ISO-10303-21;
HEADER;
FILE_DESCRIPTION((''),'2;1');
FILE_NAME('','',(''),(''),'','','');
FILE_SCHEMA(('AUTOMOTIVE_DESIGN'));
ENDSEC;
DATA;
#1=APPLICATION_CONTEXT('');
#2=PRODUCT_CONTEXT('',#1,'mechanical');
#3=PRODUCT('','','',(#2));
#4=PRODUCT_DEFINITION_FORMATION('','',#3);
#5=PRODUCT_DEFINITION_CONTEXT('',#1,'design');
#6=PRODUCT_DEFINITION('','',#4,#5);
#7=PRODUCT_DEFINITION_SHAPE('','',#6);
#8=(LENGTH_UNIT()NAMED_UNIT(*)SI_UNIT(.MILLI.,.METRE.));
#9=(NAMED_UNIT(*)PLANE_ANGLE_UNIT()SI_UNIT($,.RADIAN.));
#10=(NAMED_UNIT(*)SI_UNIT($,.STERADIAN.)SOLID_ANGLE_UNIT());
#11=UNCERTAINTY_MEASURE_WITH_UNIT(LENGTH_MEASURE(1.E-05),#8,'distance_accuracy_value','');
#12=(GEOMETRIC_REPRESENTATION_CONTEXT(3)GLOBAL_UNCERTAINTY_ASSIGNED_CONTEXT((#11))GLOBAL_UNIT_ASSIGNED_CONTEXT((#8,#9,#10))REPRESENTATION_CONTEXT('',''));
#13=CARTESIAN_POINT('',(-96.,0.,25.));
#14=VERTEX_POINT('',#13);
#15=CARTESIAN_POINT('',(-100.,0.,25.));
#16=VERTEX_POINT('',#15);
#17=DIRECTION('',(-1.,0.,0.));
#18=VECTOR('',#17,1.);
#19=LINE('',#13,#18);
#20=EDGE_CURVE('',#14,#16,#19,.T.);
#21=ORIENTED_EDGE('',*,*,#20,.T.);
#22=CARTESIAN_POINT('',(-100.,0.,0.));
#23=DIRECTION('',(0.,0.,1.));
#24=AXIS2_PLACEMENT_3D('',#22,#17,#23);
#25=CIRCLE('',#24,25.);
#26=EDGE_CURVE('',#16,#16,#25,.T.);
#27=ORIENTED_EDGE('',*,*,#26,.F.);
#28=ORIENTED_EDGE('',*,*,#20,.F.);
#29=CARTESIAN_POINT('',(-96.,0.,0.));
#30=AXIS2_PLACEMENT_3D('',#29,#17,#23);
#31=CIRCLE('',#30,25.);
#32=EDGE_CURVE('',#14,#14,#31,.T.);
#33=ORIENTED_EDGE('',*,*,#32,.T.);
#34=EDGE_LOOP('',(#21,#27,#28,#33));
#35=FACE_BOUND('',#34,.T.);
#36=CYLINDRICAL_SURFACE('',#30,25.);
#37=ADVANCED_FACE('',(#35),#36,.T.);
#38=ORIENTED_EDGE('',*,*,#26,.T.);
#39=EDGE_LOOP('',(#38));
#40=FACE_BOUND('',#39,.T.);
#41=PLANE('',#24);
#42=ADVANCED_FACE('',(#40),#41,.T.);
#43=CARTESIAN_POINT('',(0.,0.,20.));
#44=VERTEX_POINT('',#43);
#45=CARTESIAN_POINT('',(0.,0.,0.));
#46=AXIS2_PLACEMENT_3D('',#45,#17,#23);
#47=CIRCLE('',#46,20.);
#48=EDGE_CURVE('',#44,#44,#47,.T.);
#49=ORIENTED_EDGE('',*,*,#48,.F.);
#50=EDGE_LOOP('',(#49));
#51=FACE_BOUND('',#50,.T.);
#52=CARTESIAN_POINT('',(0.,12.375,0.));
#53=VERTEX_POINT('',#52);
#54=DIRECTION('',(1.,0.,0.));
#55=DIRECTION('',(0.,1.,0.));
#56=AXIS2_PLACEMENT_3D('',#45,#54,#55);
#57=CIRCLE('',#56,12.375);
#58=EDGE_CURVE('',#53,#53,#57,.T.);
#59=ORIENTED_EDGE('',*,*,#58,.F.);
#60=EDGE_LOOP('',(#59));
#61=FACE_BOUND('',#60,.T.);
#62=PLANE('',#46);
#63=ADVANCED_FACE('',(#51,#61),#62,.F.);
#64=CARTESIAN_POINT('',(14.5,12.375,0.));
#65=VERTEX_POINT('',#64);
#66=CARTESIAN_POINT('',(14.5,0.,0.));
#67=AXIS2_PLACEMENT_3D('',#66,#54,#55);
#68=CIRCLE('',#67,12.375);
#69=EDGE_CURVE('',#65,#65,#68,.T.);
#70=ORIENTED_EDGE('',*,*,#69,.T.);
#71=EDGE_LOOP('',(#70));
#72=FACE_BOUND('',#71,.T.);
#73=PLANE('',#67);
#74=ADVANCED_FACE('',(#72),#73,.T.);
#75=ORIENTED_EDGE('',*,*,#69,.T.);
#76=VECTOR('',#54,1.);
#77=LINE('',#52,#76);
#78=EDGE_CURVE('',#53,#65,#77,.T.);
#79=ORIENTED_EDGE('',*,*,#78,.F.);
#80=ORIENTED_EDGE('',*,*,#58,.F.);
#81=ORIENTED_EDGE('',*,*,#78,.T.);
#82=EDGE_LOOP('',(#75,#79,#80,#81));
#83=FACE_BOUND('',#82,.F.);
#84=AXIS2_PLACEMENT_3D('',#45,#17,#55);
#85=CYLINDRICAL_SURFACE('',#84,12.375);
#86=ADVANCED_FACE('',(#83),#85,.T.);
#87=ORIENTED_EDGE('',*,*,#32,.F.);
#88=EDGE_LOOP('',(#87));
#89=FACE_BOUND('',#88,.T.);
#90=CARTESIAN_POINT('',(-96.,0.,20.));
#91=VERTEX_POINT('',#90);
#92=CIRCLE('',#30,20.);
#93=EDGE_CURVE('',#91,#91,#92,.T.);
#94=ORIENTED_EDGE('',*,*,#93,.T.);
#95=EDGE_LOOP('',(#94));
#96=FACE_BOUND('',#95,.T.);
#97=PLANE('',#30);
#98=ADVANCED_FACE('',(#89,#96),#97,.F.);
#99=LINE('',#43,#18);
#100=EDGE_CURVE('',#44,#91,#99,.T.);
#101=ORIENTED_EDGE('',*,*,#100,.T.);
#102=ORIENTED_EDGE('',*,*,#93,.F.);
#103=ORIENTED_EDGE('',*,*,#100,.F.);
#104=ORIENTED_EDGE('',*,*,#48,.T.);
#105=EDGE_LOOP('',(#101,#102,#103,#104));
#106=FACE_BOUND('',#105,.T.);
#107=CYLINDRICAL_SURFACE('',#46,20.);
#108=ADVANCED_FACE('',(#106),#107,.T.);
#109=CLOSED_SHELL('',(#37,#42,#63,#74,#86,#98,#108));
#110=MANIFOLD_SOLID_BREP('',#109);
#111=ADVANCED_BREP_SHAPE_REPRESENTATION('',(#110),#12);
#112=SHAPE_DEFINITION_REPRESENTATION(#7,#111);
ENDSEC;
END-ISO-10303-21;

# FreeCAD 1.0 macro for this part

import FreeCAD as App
import Part
import Sketcher
Q = App.Units.Quantity

doc = App.newDocument("Part")
params = doc.addObject("Spreadsheet::Sheet", "Params")
for row, (alias, value) in enumerate([
    ("sketch1_width", "100 mm"),
    ("sketch1_width2", "96 mm"),
    ("sketch1_height", "20 mm"),
    ("sketch1_height2", "5 mm"),
    ("revolution_angle", "360 deg"),
    ("sketch2_diameter", "24.75 mm"),
    ("pad1_length", "14.5 mm"),
], start=1):
    params.set(f"A{row}", alias)
    params.set(f"B{row}", "=" + value)
    params.setAlias(f"B{row}", alias)

body = doc.addObject("PartDesign::Body", "Body")

# Sketch on XZ plane
sketch1 = doc.addObject("Sketcher::SketchObject", "Sketch")
body.addObject(sketch1)
sketch1.AttachmentSupport = (doc.XZ_Plane, [""])
sketch1.MapMode = "FlatFace"
sketch1.addGeometry(Part.LineSegment(App.Vector(-100, 0, 0), App.Vector(0, 0, 0)), False)
sketch1.addGeometry(Part.LineSegment(App.Vector(0, 0, 0), App.Vector(0, 20, 0)), False)
sketch1.addGeometry(Part.LineSegment(App.Vector(0, 20, 0), App.Vector(-96, 20, 0)), False)
sketch1.addGeometry(Part.LineSegment(App.Vector(-96, 20, 0), App.Vector(-96, 25, 0)), False)
sketch1.addGeometry(Part.LineSegment(App.Vector(-96, 25, 0), App.Vector(-100, 25, 0)), False)
sketch1.addGeometry(Part.LineSegment(App.Vector(-100, 25, 0), App.Vector(-100, 0, 0)), False)
sketch1.addConstraint(Sketcher.Constraint("Coincident", 0, 2, 1, 1))
sketch1.addConstraint(Sketcher.Constraint("Coincident", 1, 2, 2, 1))
sketch1.addConstraint(Sketcher.Constraint("Coincident", 2, 2, 3, 1))
sketch1.addConstraint(Sketcher.Constraint("Coincident", 3, 2, 4, 1))
sketch1.addConstraint(Sketcher.Constraint("Coincident", 4, 2, 5, 1))
sketch1.addConstraint(Sketcher.Constraint("Coincident", 5, 2, 0, 1))
sketch1.addConstraint(Sketcher.Constraint("Horizontal", 0))
sketch1.addConstraint(Sketcher.Constraint("Vertical", 1))
sketch1.addConstraint(Sketcher.Constraint("Horizontal", 2))
sketch1.addConstraint(Sketcher.Constraint("Vertical", 3))
sketch1.addConstraint(Sketcher.Constraint("Horizontal", 4))
sketch1.addConstraint(Sketcher.Constraint("Vertical", 5))
sketch1.addConstraint(Sketcher.Constraint("Coincident", 0, 2, -1, 1))
sketch1.addConstraint(Sketcher.Constraint("DistanceX", 0, 1, 0, 2, Q("100 mm")))
sketch1.addConstraint(Sketcher.Constraint("DistanceX", 2, 2, 2, 1, Q("96 mm")))
sketch1.addConstraint(Sketcher.Constraint("DistanceY", 1, 1, 1, 2, Q("20 mm")))
sketch1.addConstraint(Sketcher.Constraint("DistanceY", 3, 1, 3, 2, Q("5 mm")))
sketch1.setExpression("Constraints[13]", "Params.sketch1_width")
sketch1.setExpression("Constraints[14]", "Params.sketch1_width2")
sketch1.setExpression("Constraints[15]", "Params.sketch1_height")
sketch1.setExpression("Constraints[16]", "Params.sketch1_height2")
revolution = doc.addObject("PartDesign::Revolution", "Revolution")
body.addObject(revolution)
revolution.Profile = sketch1
revolution.ReferenceAxis = (sketch1, ["H_Axis"])
revolution.setExpression("Angle", "Params.revolution_angle")

# Sketch on YZ plane
sketch2 = doc.addObject("Sketcher::SketchObject", "Sketch001")
body.addObject(sketch2)
sketch2.AttachmentSupport = (doc.YZ_Plane, [""])
sketch2.MapMode = "FlatFace"
sketch2.addGeometry(Part.Circle(App.Vector(0, 0, 0), App.Vector(0, 0, 1), 12), False)
sketch2.addConstraint(Sketcher.Constraint("Coincident", 0, 3, -1, 1))
sketch2.addConstraint(Sketcher.Constraint("Diameter", 0, Q("24.75 mm")))
sketch2.setExpression("Constraints[1]", "Params.sketch2_diameter")
pad1 = doc.addObject("PartDesign::Pad", "Pad")
body.addObject(pad1)
pad1.Profile = sketch2
pad1.setExpression("Length", "Params.pad1_length")

doc.recompute()
